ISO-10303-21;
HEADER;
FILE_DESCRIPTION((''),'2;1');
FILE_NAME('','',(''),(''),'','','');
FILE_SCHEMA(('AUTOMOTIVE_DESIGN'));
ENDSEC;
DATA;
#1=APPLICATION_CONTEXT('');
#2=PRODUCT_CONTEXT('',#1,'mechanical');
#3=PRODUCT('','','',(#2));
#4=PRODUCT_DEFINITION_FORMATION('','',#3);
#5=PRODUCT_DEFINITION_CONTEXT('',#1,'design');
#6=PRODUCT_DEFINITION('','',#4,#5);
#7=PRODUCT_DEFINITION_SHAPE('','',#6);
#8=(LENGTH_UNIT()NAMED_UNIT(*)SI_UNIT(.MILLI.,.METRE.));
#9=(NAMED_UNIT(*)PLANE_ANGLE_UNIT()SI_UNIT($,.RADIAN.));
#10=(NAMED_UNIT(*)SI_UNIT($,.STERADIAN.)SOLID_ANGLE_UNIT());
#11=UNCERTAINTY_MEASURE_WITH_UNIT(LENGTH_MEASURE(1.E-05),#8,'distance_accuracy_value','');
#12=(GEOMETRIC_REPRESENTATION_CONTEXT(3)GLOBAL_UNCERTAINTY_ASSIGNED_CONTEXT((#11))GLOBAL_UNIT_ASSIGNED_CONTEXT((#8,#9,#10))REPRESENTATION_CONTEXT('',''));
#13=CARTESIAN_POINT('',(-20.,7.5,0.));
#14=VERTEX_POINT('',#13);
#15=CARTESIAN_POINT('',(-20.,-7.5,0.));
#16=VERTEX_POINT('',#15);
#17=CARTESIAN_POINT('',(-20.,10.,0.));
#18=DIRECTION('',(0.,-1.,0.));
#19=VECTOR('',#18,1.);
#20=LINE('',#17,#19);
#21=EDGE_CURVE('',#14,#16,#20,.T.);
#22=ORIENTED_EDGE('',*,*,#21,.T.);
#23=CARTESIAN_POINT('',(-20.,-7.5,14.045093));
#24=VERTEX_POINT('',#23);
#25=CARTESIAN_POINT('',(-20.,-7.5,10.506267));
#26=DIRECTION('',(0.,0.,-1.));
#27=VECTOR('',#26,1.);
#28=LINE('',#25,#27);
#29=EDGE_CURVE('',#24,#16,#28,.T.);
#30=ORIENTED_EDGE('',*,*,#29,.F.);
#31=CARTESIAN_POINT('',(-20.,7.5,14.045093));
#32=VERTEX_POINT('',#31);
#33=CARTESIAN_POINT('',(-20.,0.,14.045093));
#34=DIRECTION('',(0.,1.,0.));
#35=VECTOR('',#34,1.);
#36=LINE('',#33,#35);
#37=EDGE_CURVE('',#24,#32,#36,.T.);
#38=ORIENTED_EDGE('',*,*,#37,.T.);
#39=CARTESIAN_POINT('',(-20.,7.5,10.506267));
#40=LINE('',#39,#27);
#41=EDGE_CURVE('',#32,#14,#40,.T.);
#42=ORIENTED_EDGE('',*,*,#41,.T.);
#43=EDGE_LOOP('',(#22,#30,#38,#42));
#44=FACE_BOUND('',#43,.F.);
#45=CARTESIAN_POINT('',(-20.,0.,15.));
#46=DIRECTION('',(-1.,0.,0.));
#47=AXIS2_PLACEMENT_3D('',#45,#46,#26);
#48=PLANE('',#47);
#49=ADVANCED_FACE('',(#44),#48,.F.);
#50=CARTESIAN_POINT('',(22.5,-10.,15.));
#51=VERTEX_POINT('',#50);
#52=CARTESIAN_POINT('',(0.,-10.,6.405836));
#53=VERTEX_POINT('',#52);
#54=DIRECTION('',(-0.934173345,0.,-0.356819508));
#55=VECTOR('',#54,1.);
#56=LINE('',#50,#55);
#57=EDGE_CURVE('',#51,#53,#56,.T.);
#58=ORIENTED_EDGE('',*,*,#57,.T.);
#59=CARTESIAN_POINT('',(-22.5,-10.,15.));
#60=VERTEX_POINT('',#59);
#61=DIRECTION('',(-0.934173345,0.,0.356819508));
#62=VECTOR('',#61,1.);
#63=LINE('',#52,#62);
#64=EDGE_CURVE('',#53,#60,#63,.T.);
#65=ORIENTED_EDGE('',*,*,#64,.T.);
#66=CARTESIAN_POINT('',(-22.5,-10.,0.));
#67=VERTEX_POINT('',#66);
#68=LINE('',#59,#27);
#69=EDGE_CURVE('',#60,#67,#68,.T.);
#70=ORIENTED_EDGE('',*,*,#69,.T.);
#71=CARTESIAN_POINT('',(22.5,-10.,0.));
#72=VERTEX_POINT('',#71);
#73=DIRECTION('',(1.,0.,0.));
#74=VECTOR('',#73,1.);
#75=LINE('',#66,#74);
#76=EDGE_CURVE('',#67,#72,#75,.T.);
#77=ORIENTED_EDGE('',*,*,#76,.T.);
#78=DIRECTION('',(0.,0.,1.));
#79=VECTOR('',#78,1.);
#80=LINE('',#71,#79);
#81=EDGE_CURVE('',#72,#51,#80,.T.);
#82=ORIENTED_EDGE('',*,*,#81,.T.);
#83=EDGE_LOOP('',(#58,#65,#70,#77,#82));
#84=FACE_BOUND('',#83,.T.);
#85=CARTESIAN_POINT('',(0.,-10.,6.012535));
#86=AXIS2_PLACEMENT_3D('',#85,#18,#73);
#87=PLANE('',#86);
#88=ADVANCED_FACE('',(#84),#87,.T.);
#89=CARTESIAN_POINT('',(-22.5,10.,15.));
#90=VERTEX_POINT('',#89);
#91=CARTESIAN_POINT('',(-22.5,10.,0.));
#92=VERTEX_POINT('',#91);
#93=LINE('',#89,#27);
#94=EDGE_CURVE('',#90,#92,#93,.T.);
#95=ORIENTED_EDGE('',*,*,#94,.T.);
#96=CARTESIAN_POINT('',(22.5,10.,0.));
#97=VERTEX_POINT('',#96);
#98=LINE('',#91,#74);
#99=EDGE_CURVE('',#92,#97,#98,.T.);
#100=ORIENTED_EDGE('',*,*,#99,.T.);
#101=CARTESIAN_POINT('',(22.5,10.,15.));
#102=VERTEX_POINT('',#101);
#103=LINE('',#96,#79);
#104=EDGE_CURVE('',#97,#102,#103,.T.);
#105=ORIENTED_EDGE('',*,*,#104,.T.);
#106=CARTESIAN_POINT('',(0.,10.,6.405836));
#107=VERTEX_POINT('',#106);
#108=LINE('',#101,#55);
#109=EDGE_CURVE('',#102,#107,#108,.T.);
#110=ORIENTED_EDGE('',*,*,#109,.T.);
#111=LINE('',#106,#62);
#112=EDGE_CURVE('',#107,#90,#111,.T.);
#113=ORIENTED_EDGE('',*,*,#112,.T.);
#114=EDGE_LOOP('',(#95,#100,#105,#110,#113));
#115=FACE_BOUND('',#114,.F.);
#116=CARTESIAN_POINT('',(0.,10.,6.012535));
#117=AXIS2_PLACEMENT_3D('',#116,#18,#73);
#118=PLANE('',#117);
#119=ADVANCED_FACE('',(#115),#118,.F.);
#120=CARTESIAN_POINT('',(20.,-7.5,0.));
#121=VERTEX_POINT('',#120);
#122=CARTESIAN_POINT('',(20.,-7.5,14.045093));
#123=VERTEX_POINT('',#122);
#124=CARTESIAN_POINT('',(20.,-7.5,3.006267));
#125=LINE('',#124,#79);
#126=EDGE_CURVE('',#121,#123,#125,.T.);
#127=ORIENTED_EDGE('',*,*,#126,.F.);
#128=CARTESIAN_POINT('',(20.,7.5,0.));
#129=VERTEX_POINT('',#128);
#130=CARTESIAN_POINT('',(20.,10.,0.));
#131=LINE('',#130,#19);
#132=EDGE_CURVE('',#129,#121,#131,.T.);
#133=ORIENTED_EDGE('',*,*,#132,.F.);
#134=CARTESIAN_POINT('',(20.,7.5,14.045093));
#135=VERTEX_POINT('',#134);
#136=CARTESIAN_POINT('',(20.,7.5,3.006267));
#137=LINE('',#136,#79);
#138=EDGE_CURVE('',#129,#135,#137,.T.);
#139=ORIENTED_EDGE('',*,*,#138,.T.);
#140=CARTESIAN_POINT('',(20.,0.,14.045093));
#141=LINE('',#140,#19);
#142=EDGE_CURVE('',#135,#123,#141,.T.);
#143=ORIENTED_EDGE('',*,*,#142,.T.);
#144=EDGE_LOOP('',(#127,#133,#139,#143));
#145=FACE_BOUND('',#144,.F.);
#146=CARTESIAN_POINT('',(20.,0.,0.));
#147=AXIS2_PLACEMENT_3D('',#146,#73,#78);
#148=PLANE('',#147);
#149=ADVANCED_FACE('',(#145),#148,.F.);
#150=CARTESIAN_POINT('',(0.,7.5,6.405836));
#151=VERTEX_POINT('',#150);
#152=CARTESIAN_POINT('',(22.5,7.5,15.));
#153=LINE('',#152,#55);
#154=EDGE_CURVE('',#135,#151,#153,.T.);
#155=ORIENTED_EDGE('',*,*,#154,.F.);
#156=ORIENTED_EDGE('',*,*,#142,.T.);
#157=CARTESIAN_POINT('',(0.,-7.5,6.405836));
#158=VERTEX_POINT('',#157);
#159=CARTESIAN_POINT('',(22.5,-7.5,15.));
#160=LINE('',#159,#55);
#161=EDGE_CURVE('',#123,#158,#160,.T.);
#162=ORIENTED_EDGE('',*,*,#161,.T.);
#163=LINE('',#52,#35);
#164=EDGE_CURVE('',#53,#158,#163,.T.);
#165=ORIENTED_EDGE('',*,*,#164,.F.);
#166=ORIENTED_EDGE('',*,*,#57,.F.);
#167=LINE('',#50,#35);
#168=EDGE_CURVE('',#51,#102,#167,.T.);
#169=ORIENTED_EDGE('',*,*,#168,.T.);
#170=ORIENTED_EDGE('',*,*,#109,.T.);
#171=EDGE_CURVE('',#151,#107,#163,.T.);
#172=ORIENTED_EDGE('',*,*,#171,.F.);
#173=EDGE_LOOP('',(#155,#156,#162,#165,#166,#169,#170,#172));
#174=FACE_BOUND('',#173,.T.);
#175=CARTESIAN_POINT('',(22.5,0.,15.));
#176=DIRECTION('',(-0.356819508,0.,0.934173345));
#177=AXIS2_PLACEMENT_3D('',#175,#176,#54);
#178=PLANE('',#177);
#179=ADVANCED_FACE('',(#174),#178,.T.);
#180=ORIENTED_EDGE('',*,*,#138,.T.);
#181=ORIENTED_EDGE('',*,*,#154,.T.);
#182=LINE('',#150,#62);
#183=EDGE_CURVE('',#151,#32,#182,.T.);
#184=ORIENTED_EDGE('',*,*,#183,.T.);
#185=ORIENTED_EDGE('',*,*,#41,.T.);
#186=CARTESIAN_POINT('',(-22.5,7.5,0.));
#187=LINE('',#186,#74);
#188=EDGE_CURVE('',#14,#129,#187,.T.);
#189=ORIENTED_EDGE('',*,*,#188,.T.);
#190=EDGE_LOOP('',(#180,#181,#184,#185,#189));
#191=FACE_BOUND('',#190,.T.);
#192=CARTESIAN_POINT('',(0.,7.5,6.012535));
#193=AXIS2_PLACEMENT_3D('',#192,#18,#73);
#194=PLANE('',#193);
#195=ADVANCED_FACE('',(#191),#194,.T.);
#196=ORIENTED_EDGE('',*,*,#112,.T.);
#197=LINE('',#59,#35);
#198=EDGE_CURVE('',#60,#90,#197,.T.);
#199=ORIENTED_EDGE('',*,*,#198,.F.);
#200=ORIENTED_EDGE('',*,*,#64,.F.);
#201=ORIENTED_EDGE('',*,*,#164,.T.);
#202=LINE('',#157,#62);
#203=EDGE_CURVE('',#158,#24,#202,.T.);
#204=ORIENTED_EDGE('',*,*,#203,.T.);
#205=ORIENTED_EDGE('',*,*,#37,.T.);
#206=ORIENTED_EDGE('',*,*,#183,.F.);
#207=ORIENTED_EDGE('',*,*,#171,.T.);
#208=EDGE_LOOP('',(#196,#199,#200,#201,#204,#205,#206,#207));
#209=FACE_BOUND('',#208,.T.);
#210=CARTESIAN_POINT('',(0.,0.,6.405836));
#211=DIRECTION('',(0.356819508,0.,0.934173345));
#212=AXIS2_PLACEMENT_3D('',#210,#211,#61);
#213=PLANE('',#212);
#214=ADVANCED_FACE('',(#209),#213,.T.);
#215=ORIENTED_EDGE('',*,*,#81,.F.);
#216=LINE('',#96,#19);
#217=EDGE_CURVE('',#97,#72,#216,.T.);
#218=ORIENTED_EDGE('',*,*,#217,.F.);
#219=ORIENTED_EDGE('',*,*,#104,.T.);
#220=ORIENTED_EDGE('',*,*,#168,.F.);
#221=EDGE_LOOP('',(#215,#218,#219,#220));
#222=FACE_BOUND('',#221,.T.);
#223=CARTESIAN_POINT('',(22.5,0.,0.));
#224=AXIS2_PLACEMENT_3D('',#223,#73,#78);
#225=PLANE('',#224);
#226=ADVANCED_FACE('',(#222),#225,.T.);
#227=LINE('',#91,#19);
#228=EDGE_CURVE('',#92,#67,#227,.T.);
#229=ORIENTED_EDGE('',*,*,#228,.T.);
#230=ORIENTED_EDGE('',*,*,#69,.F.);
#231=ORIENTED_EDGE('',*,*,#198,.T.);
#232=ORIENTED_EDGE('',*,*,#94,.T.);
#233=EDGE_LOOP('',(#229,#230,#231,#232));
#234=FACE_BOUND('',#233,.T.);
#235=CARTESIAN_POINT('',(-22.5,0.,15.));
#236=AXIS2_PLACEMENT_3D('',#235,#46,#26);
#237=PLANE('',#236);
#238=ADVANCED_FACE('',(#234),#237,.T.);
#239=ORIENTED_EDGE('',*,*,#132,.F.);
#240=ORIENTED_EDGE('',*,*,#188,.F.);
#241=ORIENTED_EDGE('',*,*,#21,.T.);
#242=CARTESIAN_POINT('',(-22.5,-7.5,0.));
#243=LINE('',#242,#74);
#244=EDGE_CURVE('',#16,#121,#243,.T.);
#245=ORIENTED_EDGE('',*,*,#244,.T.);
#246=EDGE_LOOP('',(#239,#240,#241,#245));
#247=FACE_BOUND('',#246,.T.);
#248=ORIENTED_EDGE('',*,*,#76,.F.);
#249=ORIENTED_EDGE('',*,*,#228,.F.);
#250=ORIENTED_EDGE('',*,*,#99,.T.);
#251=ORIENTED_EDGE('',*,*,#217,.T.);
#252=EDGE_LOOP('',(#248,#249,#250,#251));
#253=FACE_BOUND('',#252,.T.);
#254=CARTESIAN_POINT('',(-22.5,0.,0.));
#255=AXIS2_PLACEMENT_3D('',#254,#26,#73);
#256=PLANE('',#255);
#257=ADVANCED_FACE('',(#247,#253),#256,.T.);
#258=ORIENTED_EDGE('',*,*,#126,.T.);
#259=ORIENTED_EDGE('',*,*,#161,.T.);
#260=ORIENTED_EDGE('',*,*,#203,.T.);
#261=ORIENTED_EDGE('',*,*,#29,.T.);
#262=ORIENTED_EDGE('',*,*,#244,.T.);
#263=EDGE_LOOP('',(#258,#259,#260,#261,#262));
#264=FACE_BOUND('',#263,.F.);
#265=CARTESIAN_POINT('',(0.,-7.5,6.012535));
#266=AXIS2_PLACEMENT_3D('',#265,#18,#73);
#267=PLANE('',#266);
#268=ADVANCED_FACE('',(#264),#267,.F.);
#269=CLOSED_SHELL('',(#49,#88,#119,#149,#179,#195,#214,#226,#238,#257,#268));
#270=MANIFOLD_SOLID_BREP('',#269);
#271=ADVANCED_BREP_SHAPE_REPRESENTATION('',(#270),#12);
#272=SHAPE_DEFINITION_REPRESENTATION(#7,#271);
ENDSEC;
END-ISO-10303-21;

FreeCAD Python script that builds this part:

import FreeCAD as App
import Part
import Sketcher


def faces_at(feature, points):
    """Names of the faces that lie closest to the given points."""
    faces = feature.Shape.Faces
    near = lambda p: min(range(len(faces)), key=lambda i: faces[i].distToShape(Part.Vertex(*p))[0])
    return sorted({f"Face{near(p) + 1}" for p in points})


def add_polygon(sketch, points):
    """Adds a closed chain of lines whose ends are joined by coincident constraints."""
    first, n = sketch.GeometryCount, len(points)
    for a, b in zip(points, points[1:] + points[:1]):
        sketch.addGeometry(Part.LineSegment(App.Vector(*a, 0), App.Vector(*b, 0)), False)
    for i in range(n):
        sketch.addConstraint(Sketcher.Constraint("Coincident", first + i, 2, first + (i + 1) % n, 1))

doc = App.newDocument("Part")
params = doc.addObject("Spreadsheet::Sheet", "Params")
for row, (alias, value) in enumerate([
    ("sketch1_width", "45 mm"),
    ("sketch1_height", "15 mm"),
    ("pad1_length", "10 mm"),
    ("pad1_length2", "10 mm"),
    ("thickness_wall", "2.5 mm"),
], start=1):
    params.set(f"A{row}", alias)
    params.set(f"B{row}", "=" + value)
    params.setAlias(f"B{row}", alias)

body = doc.addObject("PartDesign::Body", "Body")

# Sketch on XZ plane
sketch1 = body.newObject("Sketcher::SketchObject", "Sketch")
sketch1.AttachmentSupport = (doc.getObject("XZ_Plane"), [""])
sketch1.MapMode = "FlatFace"
add_polygon(sketch1, [(-22, 15), (-22, 0), (22, 0), (22, 15), (0, 6)])  # lines 0-4
sketch1.addConstraint([
    Sketcher.Constraint("Vertical", 0),
    Sketcher.Constraint("Horizontal", 1),
    Sketcher.Constraint("Vertical", 2),
    Sketcher.Constraint("Symmetric", 0, 2, 1, 2, -1, 1),
    Sketcher.Constraint("PointOnObject", 3, 2, -2),
    Sketcher.Constraint("Horizontal", 2, 2, 4, 2),
    Sketcher.Constraint("DistanceX", 1, 1, 1, 2, 45.0),
    Sketcher.Constraint("DistanceY", 0, 2, 0, 1, 15.0),
    Sketcher.Constraint("Distance", 3, 24.085466),
])
sketch1.setExpression("Constraints[11]", "Params.sketch1_width")
sketch1.setExpression("Constraints[12]", "Params.sketch1_height")
pad1 = body.newObject("PartDesign::Pad", "Pad")
pad1.Profile = sketch1
pad1.Type = "TwoLengths"
pad1.setExpression("Length", "Params.pad1_length")
pad1.setExpression("Length2", "Params.pad1_length2")
doc.recompute()

thickness = body.newObject("PartDesign::Thickness", "Thickness")
thickness.Base = (pad1, faces_at(pad1, [(0, 0, 0), (-11.25, 0, 10.703), (11.25, 0, 10.703)]))
thickness.setExpression("Value", "Params.thickness_wall")
thickness.Reversed = True
thickness.Join = "Arc"

doc.recompute()
